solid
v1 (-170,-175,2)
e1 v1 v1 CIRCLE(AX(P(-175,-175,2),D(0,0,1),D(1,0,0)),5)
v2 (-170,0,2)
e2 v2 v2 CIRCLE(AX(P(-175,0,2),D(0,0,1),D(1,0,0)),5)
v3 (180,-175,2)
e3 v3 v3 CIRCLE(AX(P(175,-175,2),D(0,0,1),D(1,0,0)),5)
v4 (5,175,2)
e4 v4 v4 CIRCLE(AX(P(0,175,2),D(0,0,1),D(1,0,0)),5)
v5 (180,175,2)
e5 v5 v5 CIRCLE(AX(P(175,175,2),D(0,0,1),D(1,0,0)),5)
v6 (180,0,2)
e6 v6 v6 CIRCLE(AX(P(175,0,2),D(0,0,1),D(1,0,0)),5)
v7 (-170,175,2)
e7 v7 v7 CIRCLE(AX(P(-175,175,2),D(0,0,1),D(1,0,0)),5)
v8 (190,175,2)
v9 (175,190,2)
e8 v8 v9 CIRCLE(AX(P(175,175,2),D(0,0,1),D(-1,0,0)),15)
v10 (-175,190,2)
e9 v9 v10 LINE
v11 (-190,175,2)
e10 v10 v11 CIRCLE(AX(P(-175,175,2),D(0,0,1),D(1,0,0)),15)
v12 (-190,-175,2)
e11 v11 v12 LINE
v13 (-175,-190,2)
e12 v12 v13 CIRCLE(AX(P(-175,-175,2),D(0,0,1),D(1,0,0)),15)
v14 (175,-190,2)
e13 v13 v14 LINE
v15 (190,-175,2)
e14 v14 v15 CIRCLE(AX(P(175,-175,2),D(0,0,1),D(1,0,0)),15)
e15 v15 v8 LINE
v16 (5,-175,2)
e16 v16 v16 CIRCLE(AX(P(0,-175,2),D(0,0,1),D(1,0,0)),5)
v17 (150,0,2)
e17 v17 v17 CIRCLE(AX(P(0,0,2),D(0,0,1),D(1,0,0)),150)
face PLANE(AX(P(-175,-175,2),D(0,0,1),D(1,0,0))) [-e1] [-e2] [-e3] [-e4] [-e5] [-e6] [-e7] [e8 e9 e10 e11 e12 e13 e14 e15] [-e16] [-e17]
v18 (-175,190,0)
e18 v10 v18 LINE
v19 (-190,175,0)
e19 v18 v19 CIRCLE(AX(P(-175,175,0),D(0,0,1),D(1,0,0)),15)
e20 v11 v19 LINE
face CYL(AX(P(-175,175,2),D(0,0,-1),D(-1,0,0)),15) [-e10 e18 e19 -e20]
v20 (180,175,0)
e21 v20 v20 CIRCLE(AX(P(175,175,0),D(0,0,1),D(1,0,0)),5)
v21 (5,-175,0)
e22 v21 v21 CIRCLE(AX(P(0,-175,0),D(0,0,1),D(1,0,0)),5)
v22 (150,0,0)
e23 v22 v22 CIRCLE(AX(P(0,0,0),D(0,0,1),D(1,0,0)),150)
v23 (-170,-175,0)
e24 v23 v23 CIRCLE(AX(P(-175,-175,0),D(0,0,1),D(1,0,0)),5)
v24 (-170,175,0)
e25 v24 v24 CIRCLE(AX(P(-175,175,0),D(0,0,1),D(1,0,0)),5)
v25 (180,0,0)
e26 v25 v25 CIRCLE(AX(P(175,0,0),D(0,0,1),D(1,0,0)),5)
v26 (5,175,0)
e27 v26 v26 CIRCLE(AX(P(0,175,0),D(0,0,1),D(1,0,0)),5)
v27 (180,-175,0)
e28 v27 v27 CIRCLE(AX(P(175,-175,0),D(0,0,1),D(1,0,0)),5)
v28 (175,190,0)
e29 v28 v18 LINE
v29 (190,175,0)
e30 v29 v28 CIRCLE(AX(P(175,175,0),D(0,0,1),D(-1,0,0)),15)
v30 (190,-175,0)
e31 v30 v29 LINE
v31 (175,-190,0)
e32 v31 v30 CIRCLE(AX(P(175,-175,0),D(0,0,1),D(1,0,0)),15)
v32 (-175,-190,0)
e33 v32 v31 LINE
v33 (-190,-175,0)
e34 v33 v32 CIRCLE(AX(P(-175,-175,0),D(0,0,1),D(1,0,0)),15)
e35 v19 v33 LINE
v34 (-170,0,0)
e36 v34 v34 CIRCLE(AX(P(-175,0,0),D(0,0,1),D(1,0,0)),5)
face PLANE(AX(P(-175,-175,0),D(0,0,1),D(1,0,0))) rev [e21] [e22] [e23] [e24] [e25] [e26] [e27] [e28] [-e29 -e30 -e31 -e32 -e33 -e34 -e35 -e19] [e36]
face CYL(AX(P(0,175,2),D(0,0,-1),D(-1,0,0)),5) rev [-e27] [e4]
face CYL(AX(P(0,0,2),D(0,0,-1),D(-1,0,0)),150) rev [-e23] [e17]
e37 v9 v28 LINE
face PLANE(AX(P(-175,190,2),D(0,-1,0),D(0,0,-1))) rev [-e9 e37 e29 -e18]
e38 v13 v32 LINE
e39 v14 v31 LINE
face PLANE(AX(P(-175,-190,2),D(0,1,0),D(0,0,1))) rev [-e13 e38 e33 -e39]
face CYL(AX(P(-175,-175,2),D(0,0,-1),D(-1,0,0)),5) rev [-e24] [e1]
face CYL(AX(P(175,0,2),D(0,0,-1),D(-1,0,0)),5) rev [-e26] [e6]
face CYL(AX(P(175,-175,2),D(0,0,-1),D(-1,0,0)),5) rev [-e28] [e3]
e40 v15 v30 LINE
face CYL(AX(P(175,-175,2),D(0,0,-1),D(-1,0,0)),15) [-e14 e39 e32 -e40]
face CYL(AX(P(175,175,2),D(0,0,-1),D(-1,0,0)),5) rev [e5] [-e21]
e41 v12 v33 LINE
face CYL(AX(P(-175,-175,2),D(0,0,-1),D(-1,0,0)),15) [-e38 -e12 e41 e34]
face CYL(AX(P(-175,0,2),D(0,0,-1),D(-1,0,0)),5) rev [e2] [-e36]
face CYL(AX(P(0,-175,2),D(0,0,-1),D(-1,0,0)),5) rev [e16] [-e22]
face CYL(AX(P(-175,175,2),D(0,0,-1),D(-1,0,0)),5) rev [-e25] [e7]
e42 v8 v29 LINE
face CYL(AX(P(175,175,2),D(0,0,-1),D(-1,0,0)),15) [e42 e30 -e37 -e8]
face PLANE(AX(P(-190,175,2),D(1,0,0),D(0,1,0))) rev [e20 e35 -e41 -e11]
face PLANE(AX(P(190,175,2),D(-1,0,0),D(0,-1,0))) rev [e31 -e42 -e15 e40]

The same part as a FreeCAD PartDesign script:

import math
import FreeCAD as App
import Part
import Sketcher
from FreeCAD import Vector

doc = App.newDocument("Part")
params = doc.addObject("Spreadsheet::Sheet", "Params")
for row, (alias, value) in enumerate([
    ("sketch1_diameter", "10 mm"),
    ("sketch1_diameter2", "300 mm"),
    ("sketch1_radius", "15 mm"),
    ("sketch1_width", "350 mm"),
    ("pad1_length", "2 mm"),
], start=1):
    params.set(f"A{row}", alias)
    params.set(f"B{row}", "=" + value)
    params.setAlias(f"B{row}", alias)

body = doc.addObject("PartDesign::Body", "Body")

# Sketch on XY plane
sketch1 = body.newObject("Sketcher::SketchObject", "Sketch")
sketch1.AttachmentSupport = (doc.getObject("XY_Plane"), [""])
sketch1.MapMode = "FlatFace"
sketch1.addGeometry([
    Part.LineSegment(Vector(175, 190, 0), Vector(-175, 190, 0)),  # 0
    Part.ArcOfCircle(Part.Circle(Vector(-175, 175, 0), Vector(0, 0, 1), 15), math.radians(90), math.radians(180)),  # 1
    Part.LineSegment(Vector(-190, 175, 0), Vector(-190, -175, 0)),  # 2
    Part.ArcOfCircle(Part.Circle(Vector(-175, -175, 0), Vector(0, 0, 1), 15), math.radians(180), math.radians(270)),  # 3
    Part.LineSegment(Vector(-175, -190, 0), Vector(175, -190, 0)),  # 4
    Part.ArcOfCircle(Part.Circle(Vector(175, -175, 0), Vector(0, 0, 1), 15), math.radians(-90), math.radians(0)),  # 5
    Part.LineSegment(Vector(190, -175, 0), Vector(190, 175, 0)),  # 6
    Part.ArcOfCircle(Part.Circle(Vector(175, 175, 0), Vector(0, 0, 1), 15), math.radians(0), math.radians(90)),  # 7
    Part.Circle(Vector(175, -175, 0), Vector(0, 0, 1), 5),  # 8
    Part.Circle(Vector(0, -175, 0), Vector(0, 0, 1), 5),  # 9
    Part.Circle(Vector(-175, -175, 0), Vector(0, 0, 1), 5),  # 10
    Part.Circle(Vector(175, 0, 0), Vector(0, 0, 1), 5),  # 11
    Part.Circle(Vector(175, 175, 0), Vector(0, 0, 1), 5),  # 12
    Part.Circle(Vector(0, 0, 0), Vector(0, 0, 1), 150),  # 13
    Part.Circle(Vector(-175, 0, 0), Vector(0, 0, 1), 5),  # 14
    Part.Circle(Vector(0, 175, 0), Vector(0, 0, 1), 5),  # 15
    Part.Circle(Vector(-175, 175, 0), Vector(0, 0, 1), 5),  # 16
], False)
sketch1.addConstraint([
    Sketcher.Constraint("Tangent", 0, 2, 1, 1),
    Sketcher.Constraint("Tangent", 1, 2, 2, 1),
    Sketcher.Constraint("Tangent", 2, 2, 3, 1),
    Sketcher.Constraint("Tangent", 3, 2, 4, 1),
    Sketcher.Constraint("Tangent", 4, 2, 5, 1),
    Sketcher.Constraint("Tangent", 5, 2, 6, 1),
    Sketcher.Constraint("Tangent", 6, 2, 7, 1),
    Sketcher.Constraint("Tangent", 7, 2, 0, 1),
    Sketcher.Constraint("Horizontal", 0),
    Sketcher.Constraint("Vertical", 2),
    Sketcher.Constraint("Horizontal", 4),
    Sketcher.Constraint("Vertical", 6),
    Sketcher.Constraint("Coincident", 13, 3, -1, 1),
    Sketcher.Constraint("Coincident", 8, 3, 5, 3),
    Sketcher.Constraint("Coincident", 10, 3, 3, 3),
    Sketcher.Constraint("Coincident", 12, 3, 7, 3),
    Sketcher.Constraint("Coincident", 16, 3, 1, 3),
    Sketcher.Constraint("Equal", 1, 3),
    Sketcher.Constraint("Equal", 3, 5),
    Sketcher.Constraint("Equal", 5, 7),
    Sketcher.Constraint("Equal", 8, 9),
    Sketcher.Constraint("Equal", 9, 10),
    Sketcher.Constraint("Equal", 10, 11),
    Sketcher.Constraint("Equal", 11, 12),
    Sketcher.Constraint("Equal", 12, 14),
    Sketcher.Constraint("Equal", 14, 15),
    Sketcher.Constraint("Equal", 15, 16),
    Sketcher.Constraint("Symmetric", 1, 3, 5, 3, -1, 1),
    Sketcher.Constraint("Symmetric", 11, 3, 14, 3, -1, 1),
    Sketcher.Constraint("Symmetric", 9, 3, 15, 3, -1, 1),
    Sketcher.Constraint("PointOnObject", 9, 3, -2),
    Sketcher.Constraint("PointOnObject", 11, 3, -1),
    Sketcher.Constraint("Horizontal", 8, 3, 9, 3),
    Sketcher.Constraint("Vertical", 8, 3, 11, 3),
    Sketcher.Constraint("Equal", 4, 2),
    Sketcher.Constraint("Diameter", 8, 10.0),
    Sketcher.Constraint("Diameter", 13, 300.0),
    Sketcher.Constraint("Radius", 1, 15.0),
    Sketcher.Constraint("DistanceX", 0, 2, 0, 1, 350.0),
])
sketch1.setExpression("Constraints[35]", "Params.sketch1_diameter")
sketch1.setExpression("Constraints[36]", "Params.sketch1_diameter2")
sketch1.setExpression("Constraints[37]", "Params.sketch1_radius")
sketch1.setExpression("Constraints[38]", "Params.sketch1_width")
pad1 = body.newObject("PartDesign::Pad", "Pad")
pad1.Profile = sketch1
pad1.setExpression("Length", "Params.pad1_length")

doc.recompute()
